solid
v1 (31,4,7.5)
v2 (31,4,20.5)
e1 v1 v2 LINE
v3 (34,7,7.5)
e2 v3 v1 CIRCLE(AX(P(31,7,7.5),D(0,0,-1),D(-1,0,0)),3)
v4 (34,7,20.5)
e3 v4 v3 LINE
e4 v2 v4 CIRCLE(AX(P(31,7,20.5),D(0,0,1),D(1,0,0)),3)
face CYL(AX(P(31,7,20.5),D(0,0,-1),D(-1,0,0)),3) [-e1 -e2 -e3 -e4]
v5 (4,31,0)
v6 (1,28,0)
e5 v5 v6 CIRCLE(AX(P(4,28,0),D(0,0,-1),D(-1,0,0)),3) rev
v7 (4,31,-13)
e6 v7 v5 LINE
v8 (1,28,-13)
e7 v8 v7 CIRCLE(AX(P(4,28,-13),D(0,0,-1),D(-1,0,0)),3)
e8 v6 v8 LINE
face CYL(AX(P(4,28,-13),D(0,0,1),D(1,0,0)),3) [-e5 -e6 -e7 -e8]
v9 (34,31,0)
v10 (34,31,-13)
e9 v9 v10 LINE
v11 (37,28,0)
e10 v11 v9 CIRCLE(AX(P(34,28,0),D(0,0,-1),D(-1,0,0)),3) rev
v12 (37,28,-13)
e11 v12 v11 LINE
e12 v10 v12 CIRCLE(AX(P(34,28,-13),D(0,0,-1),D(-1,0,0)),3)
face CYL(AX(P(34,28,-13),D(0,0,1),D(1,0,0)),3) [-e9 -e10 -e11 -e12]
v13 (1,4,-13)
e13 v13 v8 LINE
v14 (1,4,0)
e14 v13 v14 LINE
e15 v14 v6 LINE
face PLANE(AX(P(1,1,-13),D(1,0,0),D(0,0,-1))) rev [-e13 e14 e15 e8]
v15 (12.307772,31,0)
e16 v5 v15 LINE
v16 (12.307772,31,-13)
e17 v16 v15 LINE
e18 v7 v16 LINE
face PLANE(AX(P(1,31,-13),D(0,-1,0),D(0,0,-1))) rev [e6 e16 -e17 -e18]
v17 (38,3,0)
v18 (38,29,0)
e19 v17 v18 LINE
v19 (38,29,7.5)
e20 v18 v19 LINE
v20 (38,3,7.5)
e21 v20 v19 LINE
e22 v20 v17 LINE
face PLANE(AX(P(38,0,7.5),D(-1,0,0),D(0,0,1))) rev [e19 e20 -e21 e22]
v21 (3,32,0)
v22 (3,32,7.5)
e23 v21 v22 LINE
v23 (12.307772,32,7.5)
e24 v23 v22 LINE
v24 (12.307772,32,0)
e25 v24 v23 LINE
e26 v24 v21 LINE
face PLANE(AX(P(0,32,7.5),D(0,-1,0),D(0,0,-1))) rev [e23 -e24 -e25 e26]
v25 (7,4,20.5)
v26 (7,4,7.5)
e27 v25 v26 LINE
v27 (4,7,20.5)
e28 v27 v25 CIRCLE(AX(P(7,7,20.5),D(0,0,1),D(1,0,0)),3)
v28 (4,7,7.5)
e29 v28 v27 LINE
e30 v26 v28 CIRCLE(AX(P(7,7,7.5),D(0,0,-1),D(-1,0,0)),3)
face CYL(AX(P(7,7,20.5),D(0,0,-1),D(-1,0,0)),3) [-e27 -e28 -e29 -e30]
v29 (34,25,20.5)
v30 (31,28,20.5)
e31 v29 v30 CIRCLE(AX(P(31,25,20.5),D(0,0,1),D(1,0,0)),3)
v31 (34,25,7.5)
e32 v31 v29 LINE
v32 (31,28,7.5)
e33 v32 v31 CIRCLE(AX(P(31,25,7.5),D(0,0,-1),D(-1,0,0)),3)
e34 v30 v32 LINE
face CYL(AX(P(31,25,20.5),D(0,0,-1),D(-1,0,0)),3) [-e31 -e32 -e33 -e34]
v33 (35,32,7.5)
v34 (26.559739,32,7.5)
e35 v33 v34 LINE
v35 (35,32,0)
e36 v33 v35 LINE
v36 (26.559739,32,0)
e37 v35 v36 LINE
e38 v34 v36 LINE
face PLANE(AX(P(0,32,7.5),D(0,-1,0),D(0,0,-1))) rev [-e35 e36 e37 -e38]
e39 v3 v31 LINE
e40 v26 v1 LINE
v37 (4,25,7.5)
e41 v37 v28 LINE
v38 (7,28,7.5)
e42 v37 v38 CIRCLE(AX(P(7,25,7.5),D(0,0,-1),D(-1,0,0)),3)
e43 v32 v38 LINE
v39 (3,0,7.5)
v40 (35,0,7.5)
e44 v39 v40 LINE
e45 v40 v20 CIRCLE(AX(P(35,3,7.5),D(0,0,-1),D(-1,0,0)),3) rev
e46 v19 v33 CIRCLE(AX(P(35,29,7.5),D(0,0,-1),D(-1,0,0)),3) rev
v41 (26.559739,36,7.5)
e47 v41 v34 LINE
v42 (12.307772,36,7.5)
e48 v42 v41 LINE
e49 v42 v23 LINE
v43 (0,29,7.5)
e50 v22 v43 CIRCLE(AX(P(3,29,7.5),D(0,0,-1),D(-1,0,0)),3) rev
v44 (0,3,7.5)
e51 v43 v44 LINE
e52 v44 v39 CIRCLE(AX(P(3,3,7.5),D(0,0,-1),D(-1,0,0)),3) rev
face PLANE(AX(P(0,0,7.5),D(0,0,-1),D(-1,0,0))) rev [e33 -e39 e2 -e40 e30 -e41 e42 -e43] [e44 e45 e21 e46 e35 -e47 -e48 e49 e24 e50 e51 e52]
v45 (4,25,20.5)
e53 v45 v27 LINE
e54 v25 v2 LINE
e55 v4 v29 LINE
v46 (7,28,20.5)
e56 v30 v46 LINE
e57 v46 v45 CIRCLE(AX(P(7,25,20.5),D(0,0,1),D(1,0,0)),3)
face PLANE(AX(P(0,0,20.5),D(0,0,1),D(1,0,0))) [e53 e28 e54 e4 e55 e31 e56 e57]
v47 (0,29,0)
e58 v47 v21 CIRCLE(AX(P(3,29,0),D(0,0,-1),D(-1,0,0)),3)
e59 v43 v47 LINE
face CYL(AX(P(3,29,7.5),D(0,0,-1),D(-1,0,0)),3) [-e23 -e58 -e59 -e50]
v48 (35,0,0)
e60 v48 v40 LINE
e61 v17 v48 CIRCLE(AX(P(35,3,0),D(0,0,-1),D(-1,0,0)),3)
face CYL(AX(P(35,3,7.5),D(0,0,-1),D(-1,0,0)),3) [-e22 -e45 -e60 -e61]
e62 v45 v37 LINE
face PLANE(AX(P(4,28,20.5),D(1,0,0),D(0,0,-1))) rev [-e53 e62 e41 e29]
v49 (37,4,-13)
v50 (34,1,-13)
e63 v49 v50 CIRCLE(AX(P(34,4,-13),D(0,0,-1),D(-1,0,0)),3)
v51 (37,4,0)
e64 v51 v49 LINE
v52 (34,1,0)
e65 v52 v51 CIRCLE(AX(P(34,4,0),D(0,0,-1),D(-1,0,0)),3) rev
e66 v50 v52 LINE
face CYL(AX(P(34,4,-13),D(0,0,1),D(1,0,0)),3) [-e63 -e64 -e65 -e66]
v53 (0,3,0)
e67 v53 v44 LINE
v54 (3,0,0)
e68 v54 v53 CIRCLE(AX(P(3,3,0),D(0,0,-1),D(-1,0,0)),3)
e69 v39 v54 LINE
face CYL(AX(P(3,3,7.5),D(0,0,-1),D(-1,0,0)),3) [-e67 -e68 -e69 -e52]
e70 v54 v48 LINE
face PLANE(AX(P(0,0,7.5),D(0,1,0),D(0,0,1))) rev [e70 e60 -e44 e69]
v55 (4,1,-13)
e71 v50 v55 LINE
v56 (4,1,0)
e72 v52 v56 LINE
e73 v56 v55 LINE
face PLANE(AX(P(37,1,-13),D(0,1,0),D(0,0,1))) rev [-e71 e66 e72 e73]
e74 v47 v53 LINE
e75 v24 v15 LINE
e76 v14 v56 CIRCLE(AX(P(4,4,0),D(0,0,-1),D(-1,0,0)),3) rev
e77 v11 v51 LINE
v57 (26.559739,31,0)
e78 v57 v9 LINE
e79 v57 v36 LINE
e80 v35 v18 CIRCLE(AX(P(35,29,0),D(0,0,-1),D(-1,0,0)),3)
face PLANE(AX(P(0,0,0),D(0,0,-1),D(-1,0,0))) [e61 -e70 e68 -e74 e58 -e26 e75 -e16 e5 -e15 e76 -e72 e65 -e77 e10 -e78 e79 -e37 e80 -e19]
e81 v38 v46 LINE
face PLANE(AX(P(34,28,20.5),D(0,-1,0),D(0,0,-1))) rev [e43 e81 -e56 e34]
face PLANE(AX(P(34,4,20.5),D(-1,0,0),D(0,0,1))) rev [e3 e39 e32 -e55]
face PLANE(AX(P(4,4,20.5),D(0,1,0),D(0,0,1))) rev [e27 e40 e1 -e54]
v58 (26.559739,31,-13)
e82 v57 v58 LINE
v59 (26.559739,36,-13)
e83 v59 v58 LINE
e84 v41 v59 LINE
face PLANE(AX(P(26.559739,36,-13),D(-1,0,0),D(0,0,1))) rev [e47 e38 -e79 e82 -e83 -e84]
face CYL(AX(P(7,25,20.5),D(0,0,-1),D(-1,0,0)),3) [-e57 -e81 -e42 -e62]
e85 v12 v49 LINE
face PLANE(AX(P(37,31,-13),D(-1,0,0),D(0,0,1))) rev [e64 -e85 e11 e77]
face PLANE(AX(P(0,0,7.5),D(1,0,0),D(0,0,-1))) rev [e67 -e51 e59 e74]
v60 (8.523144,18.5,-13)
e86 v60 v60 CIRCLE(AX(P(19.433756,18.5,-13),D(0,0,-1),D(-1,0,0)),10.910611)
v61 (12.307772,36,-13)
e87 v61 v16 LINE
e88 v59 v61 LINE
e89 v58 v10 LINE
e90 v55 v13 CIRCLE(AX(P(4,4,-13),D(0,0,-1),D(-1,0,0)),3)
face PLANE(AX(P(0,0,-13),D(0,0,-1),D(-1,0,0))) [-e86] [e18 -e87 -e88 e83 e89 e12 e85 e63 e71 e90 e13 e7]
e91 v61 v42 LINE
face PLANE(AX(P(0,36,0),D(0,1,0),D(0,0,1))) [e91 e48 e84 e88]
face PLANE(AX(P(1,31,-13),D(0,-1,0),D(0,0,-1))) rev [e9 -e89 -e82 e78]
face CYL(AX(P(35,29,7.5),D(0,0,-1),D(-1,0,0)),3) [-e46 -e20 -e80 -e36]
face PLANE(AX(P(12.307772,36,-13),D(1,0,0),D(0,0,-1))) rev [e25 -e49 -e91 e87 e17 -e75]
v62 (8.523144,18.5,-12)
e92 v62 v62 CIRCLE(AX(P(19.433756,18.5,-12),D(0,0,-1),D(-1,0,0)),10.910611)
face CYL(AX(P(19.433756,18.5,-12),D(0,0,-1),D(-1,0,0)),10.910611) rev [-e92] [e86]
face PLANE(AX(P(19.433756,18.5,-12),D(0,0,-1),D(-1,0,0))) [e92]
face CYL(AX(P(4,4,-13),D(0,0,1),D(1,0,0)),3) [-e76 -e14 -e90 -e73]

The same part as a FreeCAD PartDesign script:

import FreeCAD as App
import Part
import Sketcher


def edges_at(feature, points):
    """Names of the edges that pass closest to the given points."""
    edges = feature.Shape.Edges
    near = lambda p: min(range(len(edges)), key=lambda i: edges[i].distToShape(Part.Vertex(*p))[0])
    return sorted({f"Edge{near(p) + 1}" for p in points})

doc = App.newDocument("Part")
params = doc.addObject("Spreadsheet::Sheet", "Params")
for row, (alias, value) in enumerate([
    ("sketch1_width", "38 mm"),
    ("sketch1_height", "32 mm"),
    ("pad1_length", "7.5 mm"),
    ("sketch2_width", "30 mm"),
    ("sketch2_height", "24 mm"),
    ("pad2_length", "13 mm"),
    ("sketch3_width", "36 mm"),
    ("sketch3_height", "30 mm"),
    ("pad3_length", "13 mm"),
    ("fillet_radius", "3 mm"),
    ("sketch4_height", "20.5 mm"),
    ("pad4_length", "5 mm"),
    ("pocket1_length", "1 mm"),
], start=1):
    params.set(f"A{row}", alias)
    params.set(f"B{row}", "=" + value)
    params.setAlias(f"B{row}", alias)

body = doc.addObject("PartDesign::Body", "Body")

# Sketch on XY plane
sketch1 = body.newObject("Sketcher::SketchObject", "Sketch")
sketch1.AttachmentSupport = (doc.getObject("XY_Plane"), [""])
sketch1.MapMode = "FlatFace"
sketch1.addGeometry(Part.LineSegment(App.Vector(0, 32, 0), App.Vector(0, 0, 0)), False)
sketch1.addGeometry(Part.LineSegment(App.Vector(0, 0, 0), App.Vector(38, 0, 0)), False)
sketch1.addGeometry(Part.LineSegment(App.Vector(38, 0, 0), App.Vector(38, 32, 0)), False)
sketch1.addGeometry(Part.LineSegment(App.Vector(38, 32, 0), App.Vector(0, 32, 0)), False)
sketch1.addConstraint(Sketcher.Constraint("Coincident", 0, 2, 1, 1))
sketch1.addConstraint(Sketcher.Constraint("Coincident", 1, 2, 2, 1))
sketch1.addConstraint(Sketcher.Constraint("Coincident", 2, 2, 3, 1))
sketch1.addConstraint(Sketcher.Constraint("Coincident", 3, 2, 0, 1))
sketch1.addConstraint(Sketcher.Constraint("Vertical", 0))
sketch1.addConstraint(Sketcher.Constraint("Horizontal", 1))
sketch1.addConstraint(Sketcher.Constraint("Vertical", 2))
sketch1.addConstraint(Sketcher.Constraint("Horizontal", 3))
sketch1.addConstraint(Sketcher.Constraint("Coincident", 0, 2, -1, 1))
sketch1.addConstraint(Sketcher.Constraint("DistanceX", 1, 1, 1, 2, 38.0))
sketch1.addConstraint(Sketcher.Constraint("DistanceY", 0, 2, 0, 1, 32.0))
sketch1.setExpression("Constraints[9]", "Params.sketch1_width")
sketch1.setExpression("Constraints[10]", "Params.sketch1_height")
pad1 = body.newObject("PartDesign::Pad", "Pad")
pad1.Profile = sketch1
pad1.setExpression("Length", "Params.pad1_length")

# Sketch on XY plane
sketch2 = body.newObject("Sketcher::SketchObject", "Sketch001")
sketch2.AttachmentSupport = (doc.getObject("XY_Plane"), [""])
sketch2.MapMode = "FlatFace"
sketch2.AttachmentOffset = App.Placement(App.Vector(0, 0, 7.5), App.Rotation())
sketch2.addGeometry(Part.LineSegment(App.Vector(4, 28, 0), App.Vector(4, 4, 0)), False)
sketch2.addGeometry(Part.LineSegment(App.Vector(4, 4, 0), App.Vector(34, 4, 0)), False)
sketch2.addGeometry(Part.LineSegment(App.Vector(34, 4, 0), App.Vector(34, 28, 0)), False)
sketch2.addGeometry(Part.LineSegment(App.Vector(34, 28, 0), App.Vector(4, 28, 0)), False)
sketch2.addConstraint(Sketcher.Constraint("Coincident", 0, 2, 1, 1))
sketch2.addConstraint(Sketcher.Constraint("Coincident", 1, 2, 2, 1))
sketch2.addConstraint(Sketcher.Constraint("Coincident", 2, 2, 3, 1))
sketch2.addConstraint(Sketcher.Constraint("Coincident", 3, 2, 0, 1))
sketch2.addConstraint(Sketcher.Constraint("Vertical", 0))
sketch2.addConstraint(Sketcher.Constraint("Horizontal", 1))
sketch2.addConstraint(Sketcher.Constraint("Vertical", 2))
sketch2.addConstraint(Sketcher.Constraint("Horizontal", 3))
sketch2.addConstraint(Sketcher.Constraint("DistanceX", 1, 1, 1, 2, 30.0))
sketch2.addConstraint(Sketcher.Constraint("DistanceY", 0, 2, 0, 1, 24.0))
sketch2.addConstraint(Sketcher.Constraint("DistanceX", -1, 1, 0, 2, 4.0))
sketch2.addConstraint(Sketcher.Constraint("DistanceY", -1, 1, 0, 2, 4.0))
sketch2.setExpression("Constraints[8]", "Params.sketch2_width")
sketch2.setExpression("Constraints[9]", "Params.sketch2_height")
pad2 = body.newObject("PartDesign::Pad", "Pad001")
pad2.Profile = sketch2
pad2.setExpression("Length", "Params.pad2_length")

# Sketch on XY plane
sketch3 = body.newObject("Sketcher::SketchObject", "Sketch002")
sketch3.AttachmentSupport = (doc.getObject("XY_Plane"), [""])
sketch3.MapMode = "FlatFace"
sketch3.addGeometry(Part.LineSegment(App.Vector(37, 31, 0), App.Vector(37, 1, 0)), False)
sketch3.addGeometry(Part.LineSegment(App.Vector(37, 1, 0), App.Vector(1, 1, 0)), False)
sketch3.addGeometry(Part.LineSegment(App.Vector(1, 1, 0), App.Vector(1, 31, 0)), False)
sketch3.addGeometry(Part.LineSegment(App.Vector(1, 31, 0), App.Vector(37, 31, 0)), False)
sketch3.addConstraint(Sketcher.Constraint("Coincident", 0, 2, 1, 1))
sketch3.addConstraint(Sketcher.Constraint("Coincident", 1, 2, 2, 1))
sketch3.addConstraint(Sketcher.Constraint("Coincident", 2, 2, 3, 1))
sketch3.addConstraint(Sketcher.Constraint("Coincident", 3, 2, 0, 1))
sketch3.addConstraint(Sketcher.Constraint("Vertical", 0))
sketch3.addConstraint(Sketcher.Constraint("Horizontal", 1))
sketch3.addConstraint(Sketcher.Constraint("Vertical", 2))
sketch3.addConstraint(Sketcher.Constraint("Horizontal", 3))
sketch3.addConstraint(Sketcher.Constraint("DistanceX", 1, 2, 1, 1, 36.0))
sketch3.addConstraint(Sketcher.Constraint("DistanceY", 0, 2, 0, 1, 30.0))
sketch3.addConstraint(Sketcher.Constraint("DistanceX", -1, 1, 0, 2, 37.0))
sketch3.addConstraint(Sketcher.Constraint("DistanceY", -1, 1, 0, 2, 1.0))
sketch3.setExpression("Constraints[8]", "Params.sketch3_width")
sketch3.setExpression("Constraints[9]", "Params.sketch3_height")
pad3 = body.newObject("PartDesign::Pad", "Pad002")
pad3.Profile = sketch3
pad3.setExpression("Length", "Params.pad3_length")
pad3.Reversed = True
doc.recompute()

fillet = body.newObject("PartDesign::Fillet", "Fillet")
fillet.Base = (pad3, edges_at(pad3, [
    (34, 28, 14),
    (4, 28, 14),
    (4, 4, 14),
    (34, 4, 14),
    (37, 1, -6.5),
    (1, 1, -6.5),
    (1, 31, -6.5),
    (37, 31, -6.5),
    (0, 32, 3.75),
    (38, 32, 3.75),
    (38, 0, 3.75),
    (0, 0, 3.75),
]))
fillet.setExpression("Radius", "Params.fillet_radius")

# Sketch on XZ plane
sketch4 = body.newObject("Sketcher::SketchObject", "Sketch003")
sketch4.AttachmentSupport = (doc.getObject("XZ_Plane"), [""])
sketch4.MapMode = "FlatFace"
sketch4.AttachmentOffset = App.Placement(App.Vector(0, 0, -31), App.Rotation())
sketch4.addGeometry(Part.LineSegment(App.Vector(12, -13, 0), App.Vector(12, 8, 0)), False)
sketch4.addGeometry(Part.LineSegment(App.Vector(12, 8, 0), App.Vector(27, 8, 0)), False)
sketch4.addGeometry(Part.LineSegment(App.Vector(27, 8, 0), App.Vector(27, -13, 0)), False)
sketch4.addGeometry(Part.LineSegment(App.Vector(27, -13, 0), App.Vector(12, -13, 0)), False)
sketch4.addConstraint(Sketcher.Constraint("Coincident", 0, 2, 1, 1))
sketch4.addConstraint(Sketcher.Constraint("Coincident", 1, 2, 2, 1))
sketch4.addConstraint(Sketcher.Constraint("Coincident", 2, 2, 3, 1))
sketch4.addConstraint(Sketcher.Constraint("Coincident", 3, 2, 0, 1))
sketch4.addConstraint(Sketcher.Constraint("Vertical", 0))
sketch4.addConstraint(Sketcher.Constraint("Horizontal", 1))
sketch4.addConstraint(Sketcher.Constraint("Vertical", 2))
sketch4.addConstraint(Sketcher.Constraint("Horizontal", 3))
sketch4.addConstraint(Sketcher.Constraint("DistanceY", 0, 1, 0, 2, 20.5))
sketch4.addConstraint(Sketcher.Constraint("DistanceY", 2, 2, -1, 1, 13.0))
sketch4.addConstraint(Sketcher.Constraint("DistanceX", 1, 1, 1, 2, 14.251968))
sketch4.addConstraint(Sketcher.Constraint("DistanceX", -1, 1, 0, 2, 12.307772))
sketch4.setExpression("Constraints[8]", "Params.sketch4_height")
pad4 = body.newObject("PartDesign::Pad", "Pad003")
pad4.Profile = sketch4
pad4.setExpression("Length", "Params.pad4_length")
pad4.Reversed = True

# Sketch on XY plane
sketch5 = body.newObject("Sketcher::SketchObject", "Sketch004")
sketch5.AttachmentSupport = (doc.getObject("XY_Plane"), [""])
sketch5.MapMode = "FlatFace"
sketch5.AttachmentOffset = App.Placement(App.Vector(0, 0, -13), App.Rotation())
sketch5.addGeometry(Part.Circle(App.Vector(19, 18, 0), App.Vector(0, 0, 1), 11), False)
sketch5.addConstraint(Sketcher.Constraint("DistanceY", -1, 1, 0, 3, 18.5))
sketch5.addConstraint(Sketcher.Constraint("Diameter", 0, 21.821222))
sketch5.addConstraint(Sketcher.Constraint("DistanceX", -1, 1, 0, 3, 19.433756))
pocket1 = body.newObject("PartDesign::Pocket", "Pocket")
pocket1.Profile = sketch5
pocket1.setExpression("Length", "Params.pocket1_length")
pocket1.Reversed = True

doc.recompute()
